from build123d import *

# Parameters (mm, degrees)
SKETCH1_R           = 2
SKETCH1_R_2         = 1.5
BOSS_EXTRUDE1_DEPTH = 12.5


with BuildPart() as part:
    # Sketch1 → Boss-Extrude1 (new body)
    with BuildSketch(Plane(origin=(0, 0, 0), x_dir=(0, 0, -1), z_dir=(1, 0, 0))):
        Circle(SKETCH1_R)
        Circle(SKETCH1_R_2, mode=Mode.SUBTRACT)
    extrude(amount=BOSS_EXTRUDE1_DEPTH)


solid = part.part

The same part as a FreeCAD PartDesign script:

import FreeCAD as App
import Part
import Sketcher

V = App.Vector

doc = App.newDocument("Part")
body = doc.addObject("PartDesign::Body", "Body")

# Sketch on YZ plane
sketch1 = doc.addObject("Sketcher::SketchObject", "Sketch")
body.addObject(sketch1)
sketch1.AttachmentSupport = (doc.YZ_Plane, [""])
sketch1.MapMode = "FlatFace"
sketch1.addGeometry(Part.Circle(V(0, 0, 0), V(0, 0, 1), 2), False)
sketch1.addGeometry(Part.Circle(V(0, 0, 0), V(0, 0, 1), 1.5), False)
sketch1.addConstraint(Sketcher.Constraint("Coincident", 0, 3, -1, 1))
sketch1.addConstraint(Sketcher.Constraint("Coincident", 1, 3, -1, 1))
sketch1.addConstraint(Sketcher.Constraint("Diameter", 0, 4.0))
sketch1.addConstraint(Sketcher.Constraint("Diameter", 1, 3.0))
pad1 = doc.addObject("PartDesign::Pad", "Pad")
body.addObject(pad1)
pad1.Profile = sketch1
pad1.Length = 12.5

doc.recompute()
